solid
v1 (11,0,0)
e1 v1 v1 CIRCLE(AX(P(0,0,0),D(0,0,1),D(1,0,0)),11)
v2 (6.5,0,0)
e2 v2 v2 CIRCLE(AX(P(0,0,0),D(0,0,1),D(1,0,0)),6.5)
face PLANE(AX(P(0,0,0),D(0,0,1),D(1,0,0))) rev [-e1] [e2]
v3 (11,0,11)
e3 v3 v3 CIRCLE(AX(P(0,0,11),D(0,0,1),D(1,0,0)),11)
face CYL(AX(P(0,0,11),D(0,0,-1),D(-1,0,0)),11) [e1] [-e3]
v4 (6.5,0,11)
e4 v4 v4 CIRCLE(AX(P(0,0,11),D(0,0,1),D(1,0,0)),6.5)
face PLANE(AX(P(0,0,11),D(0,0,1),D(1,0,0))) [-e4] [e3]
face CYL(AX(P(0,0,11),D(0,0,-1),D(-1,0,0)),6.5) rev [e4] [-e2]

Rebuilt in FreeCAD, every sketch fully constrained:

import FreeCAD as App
import Part
import Sketcher
from FreeCAD import Vector

doc = App.newDocument("Part")
body = doc.addObject("PartDesign::Body", "Body")

sketch1 = body.newObject("Sketcher::SketchObject", "Sketch")
sketch1.AttachmentSupport = (doc.getObject("XY_Plane"), [""])
sketch1.MapMode = "FlatFace"
sketch1.addGeometry(Part.Circle(Vector(0, 0, 0), Vector(0, 0, 1), 11), False)
sketch1.addGeometry(Part.Circle(Vector(0, 0, 0), Vector(0, 0, 1), 6.5), False)
sketch1.addConstraint(Sketcher.Constraint("Coincident", 0, 3, -1, 1))
sketch1.addConstraint(Sketcher.Constraint("Coincident", 1, 3, -1, 1))
sketch1.addConstraint(Sketcher.Constraint("Diameter", 0, 22.0))
sketch1.addConstraint(Sketcher.Constraint("Diameter", 1, 13.0))
pad1 = body.newObject("PartDesign::Pad", "Pad")
pad1.Profile = sketch1
pad1.Length = 11

doc.recompute()
